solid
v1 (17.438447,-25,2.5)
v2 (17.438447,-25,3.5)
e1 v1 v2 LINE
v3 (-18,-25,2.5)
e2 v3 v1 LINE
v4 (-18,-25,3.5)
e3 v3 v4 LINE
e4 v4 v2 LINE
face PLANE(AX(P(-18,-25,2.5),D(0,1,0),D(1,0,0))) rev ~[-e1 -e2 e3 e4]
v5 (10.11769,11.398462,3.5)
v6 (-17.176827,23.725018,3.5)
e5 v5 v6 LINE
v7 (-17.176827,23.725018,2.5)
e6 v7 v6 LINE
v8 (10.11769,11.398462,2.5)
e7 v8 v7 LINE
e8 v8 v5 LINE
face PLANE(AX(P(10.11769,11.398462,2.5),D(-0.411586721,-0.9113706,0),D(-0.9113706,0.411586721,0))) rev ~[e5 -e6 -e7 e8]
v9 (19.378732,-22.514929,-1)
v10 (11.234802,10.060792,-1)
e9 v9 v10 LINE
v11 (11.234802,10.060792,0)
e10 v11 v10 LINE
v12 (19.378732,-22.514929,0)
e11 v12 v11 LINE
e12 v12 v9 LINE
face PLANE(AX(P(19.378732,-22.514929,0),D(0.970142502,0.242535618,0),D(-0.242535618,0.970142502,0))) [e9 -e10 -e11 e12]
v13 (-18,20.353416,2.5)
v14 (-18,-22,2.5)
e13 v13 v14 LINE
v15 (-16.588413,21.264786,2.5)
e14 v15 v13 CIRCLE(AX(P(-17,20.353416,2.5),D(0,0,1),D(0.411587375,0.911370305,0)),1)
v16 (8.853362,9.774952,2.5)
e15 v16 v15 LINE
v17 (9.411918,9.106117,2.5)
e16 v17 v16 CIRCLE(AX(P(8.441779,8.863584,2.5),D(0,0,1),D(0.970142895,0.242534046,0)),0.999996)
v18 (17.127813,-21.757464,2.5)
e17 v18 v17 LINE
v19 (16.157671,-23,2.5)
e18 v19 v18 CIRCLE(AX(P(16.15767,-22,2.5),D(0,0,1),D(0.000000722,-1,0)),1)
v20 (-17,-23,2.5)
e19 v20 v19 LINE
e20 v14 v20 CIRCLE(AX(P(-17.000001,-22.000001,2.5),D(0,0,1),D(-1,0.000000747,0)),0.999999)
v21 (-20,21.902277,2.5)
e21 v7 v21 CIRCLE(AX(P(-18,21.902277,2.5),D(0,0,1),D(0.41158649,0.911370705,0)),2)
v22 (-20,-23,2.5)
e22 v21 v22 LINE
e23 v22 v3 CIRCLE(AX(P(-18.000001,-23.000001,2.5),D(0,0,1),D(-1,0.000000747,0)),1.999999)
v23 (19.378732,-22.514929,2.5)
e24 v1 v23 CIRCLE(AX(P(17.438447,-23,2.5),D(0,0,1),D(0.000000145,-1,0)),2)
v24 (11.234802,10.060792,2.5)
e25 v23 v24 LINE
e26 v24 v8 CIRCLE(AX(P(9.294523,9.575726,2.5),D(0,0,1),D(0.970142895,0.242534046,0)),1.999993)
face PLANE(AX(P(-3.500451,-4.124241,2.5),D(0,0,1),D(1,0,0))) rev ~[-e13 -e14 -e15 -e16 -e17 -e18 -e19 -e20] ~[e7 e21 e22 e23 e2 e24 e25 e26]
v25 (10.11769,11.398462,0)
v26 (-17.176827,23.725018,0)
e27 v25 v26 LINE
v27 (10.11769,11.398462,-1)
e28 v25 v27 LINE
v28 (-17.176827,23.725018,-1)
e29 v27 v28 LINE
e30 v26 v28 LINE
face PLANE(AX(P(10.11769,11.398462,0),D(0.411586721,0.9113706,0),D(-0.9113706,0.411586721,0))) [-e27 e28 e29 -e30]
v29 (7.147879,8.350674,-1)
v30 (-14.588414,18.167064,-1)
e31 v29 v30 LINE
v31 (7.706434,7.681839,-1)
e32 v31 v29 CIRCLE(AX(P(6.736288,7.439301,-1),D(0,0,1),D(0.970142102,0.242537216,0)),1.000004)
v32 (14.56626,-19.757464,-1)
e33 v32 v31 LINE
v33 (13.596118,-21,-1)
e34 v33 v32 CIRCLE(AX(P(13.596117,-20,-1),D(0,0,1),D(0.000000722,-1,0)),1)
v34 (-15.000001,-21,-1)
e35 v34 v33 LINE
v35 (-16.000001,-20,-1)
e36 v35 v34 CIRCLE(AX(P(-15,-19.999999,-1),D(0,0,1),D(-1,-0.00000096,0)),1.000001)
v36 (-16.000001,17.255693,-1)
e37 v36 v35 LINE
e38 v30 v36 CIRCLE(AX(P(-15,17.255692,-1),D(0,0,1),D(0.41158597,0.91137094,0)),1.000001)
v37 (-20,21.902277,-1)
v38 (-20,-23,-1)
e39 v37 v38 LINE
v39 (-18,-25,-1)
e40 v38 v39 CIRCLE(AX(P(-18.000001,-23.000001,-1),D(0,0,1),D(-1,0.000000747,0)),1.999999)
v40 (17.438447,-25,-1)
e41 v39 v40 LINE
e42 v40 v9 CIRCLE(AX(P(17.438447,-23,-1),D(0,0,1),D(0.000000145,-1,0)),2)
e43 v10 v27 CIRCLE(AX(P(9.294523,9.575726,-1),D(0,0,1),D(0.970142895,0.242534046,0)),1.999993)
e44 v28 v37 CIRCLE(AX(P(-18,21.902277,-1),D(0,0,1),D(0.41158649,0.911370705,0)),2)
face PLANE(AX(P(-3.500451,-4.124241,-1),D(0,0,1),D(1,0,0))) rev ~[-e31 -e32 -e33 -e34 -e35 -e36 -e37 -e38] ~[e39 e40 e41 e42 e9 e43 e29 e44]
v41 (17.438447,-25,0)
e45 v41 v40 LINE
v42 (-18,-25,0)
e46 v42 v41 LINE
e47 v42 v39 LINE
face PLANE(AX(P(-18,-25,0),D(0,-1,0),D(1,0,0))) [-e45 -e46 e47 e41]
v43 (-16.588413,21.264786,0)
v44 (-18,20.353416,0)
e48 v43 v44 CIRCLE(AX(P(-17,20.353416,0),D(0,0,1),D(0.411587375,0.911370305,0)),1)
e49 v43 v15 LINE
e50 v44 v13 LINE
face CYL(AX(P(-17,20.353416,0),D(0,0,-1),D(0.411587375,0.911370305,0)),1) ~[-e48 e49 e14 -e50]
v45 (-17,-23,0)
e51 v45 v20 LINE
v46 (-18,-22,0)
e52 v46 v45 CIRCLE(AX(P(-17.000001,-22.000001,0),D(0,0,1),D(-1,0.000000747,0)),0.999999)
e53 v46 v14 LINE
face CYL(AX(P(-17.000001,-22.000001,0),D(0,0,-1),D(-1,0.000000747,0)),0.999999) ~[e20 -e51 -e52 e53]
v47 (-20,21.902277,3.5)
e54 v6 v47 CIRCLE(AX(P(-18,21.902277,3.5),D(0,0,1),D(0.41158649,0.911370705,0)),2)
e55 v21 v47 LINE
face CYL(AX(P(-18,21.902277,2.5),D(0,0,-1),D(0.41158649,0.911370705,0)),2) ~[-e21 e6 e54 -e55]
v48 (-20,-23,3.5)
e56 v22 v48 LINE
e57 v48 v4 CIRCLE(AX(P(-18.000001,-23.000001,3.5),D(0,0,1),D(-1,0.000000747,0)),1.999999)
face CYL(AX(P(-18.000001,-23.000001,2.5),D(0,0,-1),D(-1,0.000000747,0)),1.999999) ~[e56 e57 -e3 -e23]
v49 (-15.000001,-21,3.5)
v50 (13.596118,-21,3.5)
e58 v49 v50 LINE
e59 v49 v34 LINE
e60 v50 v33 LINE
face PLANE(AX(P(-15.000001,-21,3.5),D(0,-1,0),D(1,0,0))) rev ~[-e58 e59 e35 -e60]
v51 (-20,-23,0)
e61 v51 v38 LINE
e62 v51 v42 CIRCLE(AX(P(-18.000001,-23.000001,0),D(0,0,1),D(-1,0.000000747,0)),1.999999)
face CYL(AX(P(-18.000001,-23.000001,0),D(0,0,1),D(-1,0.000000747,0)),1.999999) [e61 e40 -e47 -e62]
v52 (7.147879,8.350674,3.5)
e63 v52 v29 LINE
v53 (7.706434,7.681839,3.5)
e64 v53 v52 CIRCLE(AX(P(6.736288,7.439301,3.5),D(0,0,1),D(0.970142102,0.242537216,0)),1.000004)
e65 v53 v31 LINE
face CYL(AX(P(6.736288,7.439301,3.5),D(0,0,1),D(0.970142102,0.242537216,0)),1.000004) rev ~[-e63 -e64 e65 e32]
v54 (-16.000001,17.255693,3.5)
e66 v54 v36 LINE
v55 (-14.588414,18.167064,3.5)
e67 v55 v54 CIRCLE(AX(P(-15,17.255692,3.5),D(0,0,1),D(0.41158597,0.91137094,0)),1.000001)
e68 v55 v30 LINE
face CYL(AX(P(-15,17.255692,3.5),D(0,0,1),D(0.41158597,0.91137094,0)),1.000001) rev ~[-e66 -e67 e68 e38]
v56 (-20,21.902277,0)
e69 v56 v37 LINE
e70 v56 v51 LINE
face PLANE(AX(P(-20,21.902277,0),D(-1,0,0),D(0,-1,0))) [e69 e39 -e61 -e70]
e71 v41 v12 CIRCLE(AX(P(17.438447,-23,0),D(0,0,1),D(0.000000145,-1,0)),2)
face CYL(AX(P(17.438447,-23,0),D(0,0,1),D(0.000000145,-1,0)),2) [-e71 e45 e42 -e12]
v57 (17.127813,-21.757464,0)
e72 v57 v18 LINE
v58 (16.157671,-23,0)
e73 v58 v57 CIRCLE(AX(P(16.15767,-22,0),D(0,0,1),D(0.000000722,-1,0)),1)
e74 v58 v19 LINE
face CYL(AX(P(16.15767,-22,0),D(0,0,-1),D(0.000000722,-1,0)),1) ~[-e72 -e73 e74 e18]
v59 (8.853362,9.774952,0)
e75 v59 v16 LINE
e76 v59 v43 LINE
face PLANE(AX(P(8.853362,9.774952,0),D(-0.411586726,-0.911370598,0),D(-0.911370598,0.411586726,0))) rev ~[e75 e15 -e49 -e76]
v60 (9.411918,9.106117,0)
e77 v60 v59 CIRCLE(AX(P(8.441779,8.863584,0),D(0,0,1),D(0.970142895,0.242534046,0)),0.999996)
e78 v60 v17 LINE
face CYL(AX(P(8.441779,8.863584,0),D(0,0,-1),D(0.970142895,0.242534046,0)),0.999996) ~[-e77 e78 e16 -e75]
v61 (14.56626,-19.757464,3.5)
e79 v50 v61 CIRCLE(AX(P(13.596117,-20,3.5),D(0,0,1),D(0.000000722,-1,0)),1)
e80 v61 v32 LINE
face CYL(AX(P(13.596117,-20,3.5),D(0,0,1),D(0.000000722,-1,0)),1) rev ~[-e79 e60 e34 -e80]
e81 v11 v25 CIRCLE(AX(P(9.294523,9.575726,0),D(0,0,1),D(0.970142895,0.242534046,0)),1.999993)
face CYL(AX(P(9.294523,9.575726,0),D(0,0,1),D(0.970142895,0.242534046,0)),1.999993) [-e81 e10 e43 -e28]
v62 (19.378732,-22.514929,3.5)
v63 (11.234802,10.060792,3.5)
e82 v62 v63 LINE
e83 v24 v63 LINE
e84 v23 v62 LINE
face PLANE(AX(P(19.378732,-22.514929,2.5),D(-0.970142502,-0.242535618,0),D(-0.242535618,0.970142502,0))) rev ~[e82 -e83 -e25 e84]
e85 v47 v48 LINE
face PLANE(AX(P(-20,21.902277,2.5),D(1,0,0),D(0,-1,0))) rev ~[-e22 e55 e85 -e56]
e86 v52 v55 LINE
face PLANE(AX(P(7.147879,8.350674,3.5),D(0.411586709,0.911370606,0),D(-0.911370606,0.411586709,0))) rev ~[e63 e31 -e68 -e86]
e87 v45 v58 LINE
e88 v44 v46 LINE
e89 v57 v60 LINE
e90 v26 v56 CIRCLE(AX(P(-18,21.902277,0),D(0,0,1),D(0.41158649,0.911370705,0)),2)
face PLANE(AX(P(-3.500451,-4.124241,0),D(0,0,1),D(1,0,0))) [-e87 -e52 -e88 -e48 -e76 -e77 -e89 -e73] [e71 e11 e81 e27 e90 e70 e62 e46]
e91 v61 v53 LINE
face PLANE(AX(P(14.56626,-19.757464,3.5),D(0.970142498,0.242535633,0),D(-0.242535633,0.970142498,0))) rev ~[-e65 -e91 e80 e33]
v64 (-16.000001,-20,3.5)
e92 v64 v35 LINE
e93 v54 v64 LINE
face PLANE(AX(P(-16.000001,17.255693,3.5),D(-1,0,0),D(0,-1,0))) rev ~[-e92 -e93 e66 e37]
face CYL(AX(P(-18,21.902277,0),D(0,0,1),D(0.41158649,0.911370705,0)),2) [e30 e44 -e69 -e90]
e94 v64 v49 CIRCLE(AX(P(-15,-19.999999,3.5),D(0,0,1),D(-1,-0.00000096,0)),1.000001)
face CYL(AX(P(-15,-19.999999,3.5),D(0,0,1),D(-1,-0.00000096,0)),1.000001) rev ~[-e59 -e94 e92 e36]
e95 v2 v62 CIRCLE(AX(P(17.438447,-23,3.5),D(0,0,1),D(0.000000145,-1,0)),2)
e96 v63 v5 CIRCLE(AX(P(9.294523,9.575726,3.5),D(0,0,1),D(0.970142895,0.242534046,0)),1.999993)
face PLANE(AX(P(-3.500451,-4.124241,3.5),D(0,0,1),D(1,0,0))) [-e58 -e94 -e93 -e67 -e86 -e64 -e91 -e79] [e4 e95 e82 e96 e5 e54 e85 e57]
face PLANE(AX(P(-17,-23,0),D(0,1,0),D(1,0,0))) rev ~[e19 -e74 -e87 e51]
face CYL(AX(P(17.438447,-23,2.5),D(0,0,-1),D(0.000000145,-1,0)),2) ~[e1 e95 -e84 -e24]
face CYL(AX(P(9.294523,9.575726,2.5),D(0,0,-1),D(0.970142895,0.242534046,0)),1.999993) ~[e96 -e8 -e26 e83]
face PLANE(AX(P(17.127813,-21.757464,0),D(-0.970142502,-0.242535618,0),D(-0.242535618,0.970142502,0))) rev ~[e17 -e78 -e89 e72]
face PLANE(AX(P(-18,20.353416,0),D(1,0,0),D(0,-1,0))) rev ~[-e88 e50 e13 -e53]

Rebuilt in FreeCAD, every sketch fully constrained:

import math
import FreeCAD as App
import Part
import Sketcher

V = App.Vector

doc = App.newDocument("Part")
body = doc.addObject("PartDesign::Body", "Body")

sketch1 = body.newObject("Sketcher::SketchObject", "Sketch")
sketch1.AttachmentSupport = (doc.getObject("XY_Plane"), [""])
sketch1.MapMode = "FlatFace"
sketch1.addGeometry([
    Part.ArcOfCircle(Part.Circle(V(8.4, 8.9, 0), V(0, 0, 1), 1), math.radians(14), math.radians(66)),
    Part.LineSegment(V(8.9, 9.8, 0), V(-16.6, 21.3, 0)),
    Part.ArcOfCircle(Part.Circle(V(-17, 20.4, 0), V(0, 0, 1), 1), math.radians(66), math.radians(180)),
    Part.LineSegment(V(-18, 20.4, 0), V(-18, -22, 0)),
    Part.ArcOfCircle(Part.Circle(V(-17, -22, 0), V(0, 0, 1), 1), math.radians(180), math.radians(270)),
    Part.LineSegment(V(-17, -23, 0), V(16.2, -23, 0)),
    Part.ArcOfCircle(Part.Circle(V(16.2, -22, 0), V(0, 0, 1), 1), math.radians(-90), math.radians(14)),
    Part.LineSegment(V(17.1, -21.8, 0), V(9.4, 9.1, 0)),
], False)
sketch1.addConstraint([
    Sketcher.Constraint("Tangent", 0, 2, 1, 1),
    Sketcher.Constraint("Tangent", 1, 2, 2, 1),
    Sketcher.Constraint("Tangent", 2, 2, 3, 1),
    Sketcher.Constraint("Tangent", 3, 2, 4, 1),
    Sketcher.Constraint("Tangent", 4, 2, 5, 1),
    Sketcher.Constraint("Tangent", 5, 2, 6, 1),
    Sketcher.Constraint("Tangent", 6, 2, 7, 1),
    Sketcher.Constraint("Tangent", 7, 2, 0, 1),
    Sketcher.Constraint("Vertical", 3),
    Sketcher.Constraint("Horizontal", 5),
    Sketcher.Constraint("Equal", 2, 4),
    Sketcher.Constraint("Equal", 4, 6),
    Sketcher.Constraint("Radius", 2, 1.0),
    Sketcher.Constraint("DistanceX", 2, 3, -1, 1, 17.0),
    Sketcher.Constraint("DistanceY", 4, 3, -1, 1, 22.000001),
    Sketcher.Constraint("Radius", 0, 0.999996),
    Sketcher.Constraint("DistanceX", 5, 1, 5, 2, 33.157671),
    Sketcher.Constraint("DistanceY", 7, 2, 2, 3, 11.247299),
    Sketcher.Constraint("Distance", 1, 27.915949),
    Sketcher.Constraint("Distance", 7, 31.813451),
])
pad1 = body.newObject("PartDesign::Pad", "Pad")
pad1.Profile = sketch1
pad1.Length = 2.5

sketch2 = body.newObject("Sketcher::SketchObject", "Sketch001")
sketch2.AttachmentSupport = (doc.getObject("XY_Plane"), [""])
sketch2.MapMode = "FlatFace"
sketch2.addGeometry([
    Part.LineSegment(V(-18, -25, 0), V(17.4, -25, 0)),
    Part.ArcOfCircle(Part.Circle(V(17.4, -23, 0), V(0, 0, 1), 2), math.radians(-90), math.radians(14)),
    Part.LineSegment(V(19.4, -22.5, 0), V(11.2, 10.1, 0)),
    Part.ArcOfCircle(Part.Circle(V(9.3, 9.6, 0), V(0, 0, 1), 2), math.radians(14), math.radians(66)),
    Part.LineSegment(V(10.1, 11.4, 0), V(-17.2, 23.7, 0)),
    Part.ArcOfCircle(Part.Circle(V(-18, 21.9, 0), V(0, 0, 1), 2), math.radians(66), math.radians(180)),
    Part.LineSegment(V(-20, 21.9, 0), V(-20, -23, 0)),
    Part.ArcOfCircle(Part.Circle(V(-18, -23, 0), V(0, 0, 1), 2), math.radians(180), math.radians(270)),
], False)
sketch2.addConstraint([
    Sketcher.Constraint("Tangent", 0, 2, 1, 1),
    Sketcher.Constraint("Tangent", 1, 2, 2, 1),
    Sketcher.Constraint("Tangent", 2, 2, 3, 1),
    Sketcher.Constraint("Tangent", 3, 2, 4, 1),
    Sketcher.Constraint("Tangent", 4, 2, 5, 1),
    Sketcher.Constraint("Tangent", 5, 2, 6, 1),
    Sketcher.Constraint("Tangent", 6, 2, 7, 1),
    Sketcher.Constraint("Tangent", 7, 2, 0, 1),
    Sketcher.Constraint("Horizontal", 0),
    Sketcher.Constraint("Vertical", 6),
    Sketcher.Constraint("Equal", 1, 5),
    Sketcher.Constraint("Equal", 5, 7),
    Sketcher.Constraint("Radius", 1, 2.0),
    Sketcher.Constraint("DistanceY", 1, 3, -1, 1, 23.0),
    Sketcher.Constraint("DistanceX", 5, 3, -1, 1, 18.0),
    Sketcher.Constraint("Radius", 3, 1.999993),
    Sketcher.Constraint("DistanceX", 5, 3, 2, 2, 29.234802),
    Sketcher.Constraint("DistanceX", 0, 1, 0, 2, 35.438447),
    Sketcher.Constraint("DistanceY", 6, 2, 6, 1, 44.902277),
    Sketcher.Constraint("DistanceY", 1, 2, -1, 1, 22.514929),
])
pad2 = body.newObject("PartDesign::Pad", "Pad001")
pad2.Profile = sketch2
pad2.Length = 1
pad2.Reversed = True

sketch3 = body.newObject("Sketcher::SketchObject", "Sketch002")
sketch3.AttachmentSupport = (doc.getObject("XY_Plane"), [""])
sketch3.MapMode = "FlatFace"
sketch3.AttachmentOffset = App.Placement(V(0, 0, 2.5), App.Rotation())
sketch3.addGeometry([
    Part.LineSegment(V(19.4, -22.5, 0), V(11.2, 10.1, 0)),
    Part.ArcOfCircle(Part.Circle(V(9.3, 9.6, 0), V(0, 0, 1), 2), math.radians(14), math.radians(66)),
    Part.LineSegment(V(10.1, 11.4, 0), V(-17.2, 23.7, 0)),
    Part.ArcOfCircle(Part.Circle(V(-18, 21.9, 0), V(0, 0, 1), 2), math.radians(66), math.radians(180)),
    Part.LineSegment(V(-20, 21.9, 0), V(-20, -23, 0)),
    Part.ArcOfCircle(Part.Circle(V(-18, -23, 0), V(0, 0, 1), 2), math.radians(180), math.radians(270)),
    Part.LineSegment(V(-18, -25, 0), V(17.4, -25, 0)),
    Part.ArcOfCircle(Part.Circle(V(17.4, -23, 0), V(0, 0, 1), 2), math.radians(-90), math.radians(14)),
], False)
sketch3.addConstraint([
    Sketcher.Constraint("Tangent", 0, 2, 1, 1),
    Sketcher.Constraint("Tangent", 1, 2, 2, 1),
    Sketcher.Constraint("Tangent", 2, 2, 3, 1),
    Sketcher.Constraint("Tangent", 3, 2, 4, 1),
    Sketcher.Constraint("Tangent", 4, 2, 5, 1),
    Sketcher.Constraint("Tangent", 5, 2, 6, 1),
    Sketcher.Constraint("Tangent", 6, 2, 7, 1),
    Sketcher.Constraint("Tangent", 7, 2, 0, 1),
    Sketcher.Constraint("Vertical", 4),
    Sketcher.Constraint("Horizontal", 6),
    Sketcher.Constraint("Equal", 3, 5),
    Sketcher.Constraint("Equal", 5, 7),
    Sketcher.Constraint("Radius", 3, 2.0),
    Sketcher.Constraint("DistanceX", 3, 3, -1, 1, 18.0),
    Sketcher.Constraint("DistanceY", 5, 3, -1, 1, 23.000001),
    Sketcher.Constraint("Radius", 1, 1.999993),
    Sketcher.Constraint("DistanceX", 3, 3, 0, 2, 29.234802),
    Sketcher.Constraint("DistanceX", 6, 1, 6, 2, 35.438447),
    Sketcher.Constraint("DistanceY", 4, 2, 4, 1, 44.902277),
    Sketcher.Constraint("DistanceY", -1, 1, 0, 2, 10.060792),
])
pad3 = body.newObject("PartDesign::Pad", "Pad002")
pad3.Profile = sketch3
pad3.Length = 1

sketch4 = body.newObject("Sketcher::SketchObject", "Sketch003")
sketch4.AttachmentSupport = (doc.getObject("XY_Plane"), [""])
sketch4.MapMode = "FlatFace"
sketch4.AttachmentOffset = App.Placement(V(0, 0, 3.5), App.Rotation())
sketch4.addGeometry([
    Part.ArcOfCircle(Part.Circle(V(13.6, -20, 0), V(0, 0, 1), 1), math.radians(-90), math.radians(14)),
    Part.LineSegment(V(14.6, -19.8, 0), V(7.7, 7.7, 0)),
    Part.ArcOfCircle(Part.Circle(V(6.7, 7.4, 0), V(0, 0, 1), 1), math.radians(14), math.radians(66)),
    Part.LineSegment(V(7.1, 8.4, 0), V(-14.6, 18.2, 0)),
    Part.ArcOfCircle(Part.Circle(V(-15, 17.3, 0), V(0, 0, 1), 1), math.radians(66), math.radians(180)),
    Part.LineSegment(V(-16, 17.3, 0), V(-16, -20, 0)),
    Part.ArcOfCircle(Part.Circle(V(-15, -20, 0), V(0, 0, 1), 1), math.radians(-180), math.radians(-90)),
    Part.LineSegment(V(-15, -21, 0), V(13.6, -21, 0)),
], False)
sketch4.addConstraint([
    Sketcher.Constraint("Tangent", 0, 2, 1, 1),
    Sketcher.Constraint("Tangent", 1, 2, 2, 1),
    Sketcher.Constraint("Coincident", 2, 2, 3, 1),
    Sketcher.Constraint("Tangent", 3, 2, 4, 1),
    Sketcher.Constraint("Tangent", 4, 2, 5, 1),
    Sketcher.Constraint("Tangent", 5, 2, 6, 1),
    Sketcher.Constraint("Tangent", 6, 2, 7, 1),
    Sketcher.Constraint("Tangent", 7, 2, 0, 1),
    Sketcher.Constraint("Vertical", 5),
    Sketcher.Constraint("Horizontal", 7),
    Sketcher.Constraint("Equal", 0, 4),
    Sketcher.Constraint("Equal", 4, 6),
    Sketcher.Constraint("Radius", 0, 1.0),
    Sketcher.Constraint("DistanceY", 0, 3, -1, 1, 20.0),
    Sketcher.Constraint("DistanceX", 4, 3, -1, 1, 15.0),
    Sketcher.Constraint("Radius", 2, 1.000004),
    Sketcher.Constraint("DistanceX", 7, 1, 7, 2, 28.596119),
    Sketcher.Constraint("DistanceY", -1, 1, 2, 3, 7.439301),
    Sketcher.Constraint("DistanceX", 3, 2, 2, 3, 21.324702),
    Sketcher.Constraint("DistanceY", 5, 2, 5, 1, 37.255693),
    Sketcher.Constraint("DistanceX", -1, 1, 2, 2, 7.147879),
])
pocket1 = body.newObject("PartDesign::Pocket", "Pocket")
pocket1.Profile = sketch4
pocket1.Length = 4.5

doc.recompute()
